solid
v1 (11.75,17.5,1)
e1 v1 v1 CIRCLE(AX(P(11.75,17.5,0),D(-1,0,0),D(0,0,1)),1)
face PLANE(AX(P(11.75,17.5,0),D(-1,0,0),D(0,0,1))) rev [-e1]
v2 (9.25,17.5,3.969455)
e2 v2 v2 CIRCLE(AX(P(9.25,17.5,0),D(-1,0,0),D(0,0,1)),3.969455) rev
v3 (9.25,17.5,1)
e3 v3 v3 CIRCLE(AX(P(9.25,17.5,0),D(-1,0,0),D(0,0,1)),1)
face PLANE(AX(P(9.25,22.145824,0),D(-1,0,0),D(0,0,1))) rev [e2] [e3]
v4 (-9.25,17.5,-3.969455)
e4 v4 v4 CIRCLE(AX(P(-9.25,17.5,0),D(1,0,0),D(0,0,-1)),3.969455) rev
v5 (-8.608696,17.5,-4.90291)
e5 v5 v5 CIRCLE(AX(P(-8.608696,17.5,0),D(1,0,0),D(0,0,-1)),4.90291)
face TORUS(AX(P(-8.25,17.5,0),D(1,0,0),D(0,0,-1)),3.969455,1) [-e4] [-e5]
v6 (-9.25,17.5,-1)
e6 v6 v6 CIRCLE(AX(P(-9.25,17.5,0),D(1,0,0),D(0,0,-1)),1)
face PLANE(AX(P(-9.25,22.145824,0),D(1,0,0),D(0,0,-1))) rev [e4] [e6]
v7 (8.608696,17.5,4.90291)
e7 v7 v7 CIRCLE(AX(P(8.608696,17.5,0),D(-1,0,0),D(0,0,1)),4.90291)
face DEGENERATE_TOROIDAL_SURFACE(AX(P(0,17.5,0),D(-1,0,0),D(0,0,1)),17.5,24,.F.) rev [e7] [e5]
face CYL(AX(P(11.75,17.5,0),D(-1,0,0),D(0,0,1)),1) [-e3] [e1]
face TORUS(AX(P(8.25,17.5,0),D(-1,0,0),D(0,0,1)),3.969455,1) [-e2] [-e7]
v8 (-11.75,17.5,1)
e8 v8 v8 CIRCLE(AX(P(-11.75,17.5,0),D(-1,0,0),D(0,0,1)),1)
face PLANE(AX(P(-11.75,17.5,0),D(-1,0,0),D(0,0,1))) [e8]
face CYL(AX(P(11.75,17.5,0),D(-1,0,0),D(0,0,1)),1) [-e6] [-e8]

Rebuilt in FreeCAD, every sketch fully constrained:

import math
import FreeCAD as App
import Part
import Sketcher

V = App.Vector
Q = App.Units.Quantity


def edges_at(feature, points):
    """Names of the edges that pass closest to the given points."""
    edges = feature.Shape.Edges
    near = lambda p: min(range(len(edges)), key=lambda i: edges[i].distToShape(Part.Vertex(*p))[0])
    return sorted({f"Edge{near(p) + 1}" for p in points})

doc = App.newDocument("Part")
body = doc.addObject("PartDesign::Body", "Body")

sketch1 = body.newObject("Sketcher::SketchObject", "Sketch")
sketch1.AttachmentSupport = (doc.getObject("XY_Plane"), [""])
sketch1.MapMode = "FlatFace"
sketch1.addGeometry([
    Part.LineSegment(V(-9.2, 22.1, 0), V(-9.2, 17.5, 0)),
    Part.LineSegment(V(-9.2, 17.5, 0), V(9.2, 17.5, 0)),
    Part.LineSegment(V(9.2, 17.5, 0), V(9.2, 22.1, 0)),
    Part.ArcOfCircle(Part.Circle(V(0, 0, 0), V(0, 0, 1), 24), math.radians(67), math.radians(113)),
], False)
sketch1.addGeometry(Part.LineSegment(V(-9.2, 17.5, 0), V(9.2, 17.5, 0)), True)
sketch1.addConstraint([
    Sketcher.Constraint("Coincident", 0, 2, 1, 1),
    Sketcher.Constraint("Coincident", 1, 2, 2, 1),
    Sketcher.Constraint("Coincident", 2, 2, 3, 1),
    Sketcher.Constraint("Coincident", 3, 2, 0, 1),
    Sketcher.Constraint("Vertical", 0),
    Sketcher.Constraint("Horizontal", 1),
    Sketcher.Constraint("Vertical", 2),
    Sketcher.Constraint("Horizontal", 4),
    Sketcher.Constraint("Coincident", 3, 3, -1, 1),
    Sketcher.Constraint("Coincident", 4, 1, 0, 2),
    Sketcher.Constraint("Horizontal", 2, 2, 3, 2),
    Sketcher.Constraint("Vertical", 2, 2, 4, 2),
    Sketcher.Constraint("Radius", 3, Q("24 mm")),
    Sketcher.Constraint("DistanceX", 1, 1, 1, 2, Q("18.5 mm")),
    Sketcher.Constraint("DistanceY", -1, 1, 0, 2, Q("17.5 mm")),
])
revolution = body.newObject("PartDesign::Revolution", "Revolution")
revolution.Profile = sketch1
revolution.ReferenceAxis = (sketch1, ["Axis0"])
revolution.Angle = 360

sketch2 = body.newObject("Sketcher::SketchObject", "Sketch001")
sketch2.AttachmentSupport = (doc.getObject("YZ_Plane"), [""])
sketch2.MapMode = "FlatFace"
sketch2.AttachmentOffset = App.Placement(V(0, 0, -9.25), App.Rotation())
sketch2.addGeometry(Part.Circle(V(17.5, 0, 0), V(0, 0, 1), 0.8), False)
sketch2.addConstraint([
    Sketcher.Constraint("PointOnObject", 0, 3, -1),
    Sketcher.Constraint("Diameter", 0, Q("1.5 mm")),
    Sketcher.Constraint("DistanceX", -1, 1, 0, 3, Q("17.5 mm")),
])
pocket1 = body.newObject("PartDesign::Pocket", "Pocket")
pocket1.Profile = sketch2
pocket1.Type = "ThroughAll"
pocket1.Reversed = True
doc.recompute()

fillet = body.newObject("PartDesign::Fillet", "Fillet")
fillet.Base = (pocket1, edges_at(pocket1, [(9.25, 17.5, -4.646), (-9.25, 17.5, -4.646)]))
fillet.Radius = 1

sketch3 = body.newObject("Sketcher::SketchObject", "Sketch002")
sketch3.AttachmentSupport = (doc.getObject("YZ_Plane"), [""])
sketch3.MapMode = "FlatFace"
sketch3.addGeometry(Part.Circle(V(17.5, 0, 0), V(0, 0, 1), 1), False)
sketch3.addConstraint([
    Sketcher.Constraint("PointOnObject", 0, 3, -1),
    Sketcher.Constraint("Diameter", 0, Q("2 mm")),
    Sketcher.Constraint("DistanceX", -1, 1, 0, 3, Q("17.5 mm")),
])
pad1 = body.newObject("PartDesign::Pad", "Pad")
pad1.Profile = sketch3
pad1.Type = "TwoLengths"
pad1.Length = 11.75
pad1.Length2 = 11.75
pad1.Reversed = True

doc.recompute()
